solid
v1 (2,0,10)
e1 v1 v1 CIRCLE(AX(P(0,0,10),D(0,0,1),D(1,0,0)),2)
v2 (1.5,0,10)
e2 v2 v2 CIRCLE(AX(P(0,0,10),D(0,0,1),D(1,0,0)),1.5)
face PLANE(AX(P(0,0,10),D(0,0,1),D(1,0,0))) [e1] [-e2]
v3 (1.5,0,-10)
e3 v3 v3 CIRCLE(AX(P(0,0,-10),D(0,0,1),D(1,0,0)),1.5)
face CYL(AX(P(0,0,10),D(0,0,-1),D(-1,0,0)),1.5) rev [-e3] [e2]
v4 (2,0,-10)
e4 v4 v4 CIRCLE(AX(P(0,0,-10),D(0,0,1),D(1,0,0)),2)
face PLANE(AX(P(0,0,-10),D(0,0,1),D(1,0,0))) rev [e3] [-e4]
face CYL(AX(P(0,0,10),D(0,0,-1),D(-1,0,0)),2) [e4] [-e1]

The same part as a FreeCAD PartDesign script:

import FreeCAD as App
import Part
import Sketcher

V = App.Vector

doc = App.newDocument("Part")
params = doc.addObject("Spreadsheet::Sheet", "Params")
for row, (alias, value) in enumerate([
    ("sketch1_diameter", "4 mm"),
    ("sketch1_diameter2", "3 mm"),
    ("pad1_length", "20 mm"),
], start=1):
    params.set(f"A{row}", alias)
    params.set(f"B{row}", "=" + value)
    params.setAlias(f"B{row}", alias)

body = doc.addObject("PartDesign::Body", "Body")

sketch1 = body.newObject("Sketcher::SketchObject", "Sketch")
sketch1.AttachmentSupport = (doc.getObject("XY_Plane"), [""])
sketch1.MapMode = "FlatFace"
sketch1.addGeometry(Part.Circle(V(0, 0, 0), V(0, 0, 1), 2), False)
sketch1.addGeometry(Part.Circle(V(0, 0, 0), V(0, 0, 1), 1.5), False)
sketch1.addConstraint(Sketcher.Constraint("Coincident", 0, 3, -1, 1))
sketch1.addConstraint(Sketcher.Constraint("Coincident", 1, 3, -1, 1))
sketch1.addConstraint(Sketcher.Constraint("Diameter", 0, 4.0))
sketch1.addConstraint(Sketcher.Constraint("Diameter", 1, 3.0))
sketch1.setExpression("Constraints[2]", "Params.sketch1_diameter")
sketch1.setExpression("Constraints[3]", "Params.sketch1_diameter2")
pad1 = body.newObject("PartDesign::Pad", "Pad")
pad1.Profile = sketch1
pad1.setExpression("Length", "Params.pad1_length")
pad1.Midplane = True

doc.recompute()
